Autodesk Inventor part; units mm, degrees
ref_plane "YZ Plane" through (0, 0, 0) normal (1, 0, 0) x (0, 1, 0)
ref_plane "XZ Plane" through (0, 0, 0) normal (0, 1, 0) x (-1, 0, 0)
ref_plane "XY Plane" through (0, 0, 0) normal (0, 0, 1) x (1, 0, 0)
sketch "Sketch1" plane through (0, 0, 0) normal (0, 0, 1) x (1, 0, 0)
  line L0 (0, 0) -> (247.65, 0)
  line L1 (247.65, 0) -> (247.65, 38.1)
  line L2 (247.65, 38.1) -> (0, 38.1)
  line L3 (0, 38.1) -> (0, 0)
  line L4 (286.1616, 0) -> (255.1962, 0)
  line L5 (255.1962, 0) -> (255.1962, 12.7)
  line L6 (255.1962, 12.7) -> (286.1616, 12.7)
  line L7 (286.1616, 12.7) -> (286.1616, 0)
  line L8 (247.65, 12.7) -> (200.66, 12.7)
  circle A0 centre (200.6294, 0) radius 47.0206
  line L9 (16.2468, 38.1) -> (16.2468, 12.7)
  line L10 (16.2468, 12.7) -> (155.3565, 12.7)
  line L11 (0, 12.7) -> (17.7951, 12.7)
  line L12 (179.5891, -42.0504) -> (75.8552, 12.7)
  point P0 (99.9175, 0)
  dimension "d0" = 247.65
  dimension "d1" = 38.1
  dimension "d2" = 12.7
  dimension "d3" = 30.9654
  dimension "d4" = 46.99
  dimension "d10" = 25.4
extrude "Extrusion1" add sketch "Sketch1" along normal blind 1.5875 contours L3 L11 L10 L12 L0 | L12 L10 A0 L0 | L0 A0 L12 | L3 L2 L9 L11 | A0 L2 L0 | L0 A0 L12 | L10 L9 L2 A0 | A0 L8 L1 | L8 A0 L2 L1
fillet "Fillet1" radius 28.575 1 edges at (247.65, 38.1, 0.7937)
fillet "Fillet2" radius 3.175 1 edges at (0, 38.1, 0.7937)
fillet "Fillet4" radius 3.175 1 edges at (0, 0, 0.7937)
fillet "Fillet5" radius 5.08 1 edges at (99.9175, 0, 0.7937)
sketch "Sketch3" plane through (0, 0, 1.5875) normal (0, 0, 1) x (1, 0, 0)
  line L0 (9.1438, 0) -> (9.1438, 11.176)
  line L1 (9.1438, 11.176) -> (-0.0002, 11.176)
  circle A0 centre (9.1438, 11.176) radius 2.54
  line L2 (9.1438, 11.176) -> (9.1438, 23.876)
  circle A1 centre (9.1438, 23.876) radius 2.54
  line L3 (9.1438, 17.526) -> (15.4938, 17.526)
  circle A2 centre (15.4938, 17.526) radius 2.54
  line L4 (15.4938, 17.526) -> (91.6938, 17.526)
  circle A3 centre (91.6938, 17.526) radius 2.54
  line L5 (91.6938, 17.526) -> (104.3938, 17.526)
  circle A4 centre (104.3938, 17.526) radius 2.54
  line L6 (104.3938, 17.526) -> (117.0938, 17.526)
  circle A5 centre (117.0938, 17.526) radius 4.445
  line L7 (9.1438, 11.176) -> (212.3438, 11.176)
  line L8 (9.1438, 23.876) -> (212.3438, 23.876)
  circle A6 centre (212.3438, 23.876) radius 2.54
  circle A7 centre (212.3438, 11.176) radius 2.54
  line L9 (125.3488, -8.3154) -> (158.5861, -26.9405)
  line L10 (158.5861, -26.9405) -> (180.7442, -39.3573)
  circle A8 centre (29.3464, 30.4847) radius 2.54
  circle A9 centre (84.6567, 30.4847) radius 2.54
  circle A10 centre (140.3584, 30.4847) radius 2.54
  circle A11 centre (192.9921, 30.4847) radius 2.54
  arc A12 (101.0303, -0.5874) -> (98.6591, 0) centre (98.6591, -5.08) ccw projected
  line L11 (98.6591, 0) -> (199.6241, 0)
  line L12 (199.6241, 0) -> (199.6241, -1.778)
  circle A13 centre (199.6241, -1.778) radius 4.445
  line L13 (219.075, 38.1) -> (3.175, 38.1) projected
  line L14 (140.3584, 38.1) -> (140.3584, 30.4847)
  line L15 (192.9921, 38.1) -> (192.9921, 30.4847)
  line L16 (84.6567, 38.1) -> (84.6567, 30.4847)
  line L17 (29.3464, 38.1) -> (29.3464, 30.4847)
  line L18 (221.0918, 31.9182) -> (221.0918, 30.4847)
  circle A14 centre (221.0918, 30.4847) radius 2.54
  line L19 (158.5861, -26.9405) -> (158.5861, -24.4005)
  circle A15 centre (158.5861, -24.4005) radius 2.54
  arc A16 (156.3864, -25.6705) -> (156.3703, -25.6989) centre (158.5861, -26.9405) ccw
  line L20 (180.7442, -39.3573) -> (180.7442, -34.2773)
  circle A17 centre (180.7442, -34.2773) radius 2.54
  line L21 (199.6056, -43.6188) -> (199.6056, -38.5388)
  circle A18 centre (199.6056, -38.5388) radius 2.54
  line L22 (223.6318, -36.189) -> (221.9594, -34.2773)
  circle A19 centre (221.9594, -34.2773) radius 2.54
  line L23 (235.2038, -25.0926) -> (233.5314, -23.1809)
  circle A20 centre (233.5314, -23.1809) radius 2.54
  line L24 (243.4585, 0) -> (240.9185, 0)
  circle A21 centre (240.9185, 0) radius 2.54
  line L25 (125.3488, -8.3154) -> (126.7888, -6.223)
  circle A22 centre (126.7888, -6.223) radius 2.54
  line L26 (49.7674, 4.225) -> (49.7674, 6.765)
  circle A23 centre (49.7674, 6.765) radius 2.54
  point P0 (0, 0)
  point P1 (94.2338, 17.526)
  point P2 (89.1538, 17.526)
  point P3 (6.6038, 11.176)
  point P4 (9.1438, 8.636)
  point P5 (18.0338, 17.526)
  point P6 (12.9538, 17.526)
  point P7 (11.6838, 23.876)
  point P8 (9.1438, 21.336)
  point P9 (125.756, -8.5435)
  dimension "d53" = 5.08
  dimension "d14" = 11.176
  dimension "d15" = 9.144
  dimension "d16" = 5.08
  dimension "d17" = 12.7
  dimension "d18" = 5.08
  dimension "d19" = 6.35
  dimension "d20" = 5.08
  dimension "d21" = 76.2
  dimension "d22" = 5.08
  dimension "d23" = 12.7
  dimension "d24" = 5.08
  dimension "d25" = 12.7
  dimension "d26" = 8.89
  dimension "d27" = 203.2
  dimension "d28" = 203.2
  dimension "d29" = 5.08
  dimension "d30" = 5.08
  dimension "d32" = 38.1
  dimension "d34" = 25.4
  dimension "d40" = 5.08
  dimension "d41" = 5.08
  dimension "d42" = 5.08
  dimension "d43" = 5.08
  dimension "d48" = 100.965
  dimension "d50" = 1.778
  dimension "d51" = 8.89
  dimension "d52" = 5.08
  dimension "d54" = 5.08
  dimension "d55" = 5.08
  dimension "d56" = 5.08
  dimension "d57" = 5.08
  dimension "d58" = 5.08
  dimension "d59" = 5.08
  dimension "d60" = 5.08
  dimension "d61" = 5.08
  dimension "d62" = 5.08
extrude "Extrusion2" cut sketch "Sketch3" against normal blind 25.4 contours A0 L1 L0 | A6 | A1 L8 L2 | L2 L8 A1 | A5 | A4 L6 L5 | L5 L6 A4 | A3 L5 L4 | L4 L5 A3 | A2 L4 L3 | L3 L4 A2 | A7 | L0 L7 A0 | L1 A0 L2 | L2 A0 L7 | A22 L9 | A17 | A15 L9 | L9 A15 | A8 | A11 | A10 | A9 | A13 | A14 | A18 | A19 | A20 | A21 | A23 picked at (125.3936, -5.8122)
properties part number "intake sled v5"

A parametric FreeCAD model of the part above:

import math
import FreeCAD as App
import Part
import Sketcher

V = App.Vector
Q = App.Units.Quantity


def edges_at(feature, points):
    """Names of the edges that pass closest to the given points."""
    edges = feature.Shape.Edges
    near = lambda p: min(range(len(edges)), key=lambda i: edges[i].distToShape(Part.Vertex(*p))[0])
    return sorted({f"Edge{near(p) + 1}" for p in points})

doc = App.newDocument("Part")
body = doc.addObject("PartDesign::Body", "Body")

# Sketch on XY plane
sketch1 = body.newObject("Sketcher::SketchObject", "Sketch")
sketch1.AttachmentSupport = (doc.getObject("XY_Plane"), [""])
sketch1.MapMode = "FlatFace"
sketch1.addGeometry(Part.LineSegment(V(0, 0, 0), V(100, 0, 0)), False)
sketch1.addGeometry(Part.LineSegment(V(100, 0, 0), V(180, -42, 0)), False)
sketch1.addGeometry(Part.ArcOfCircle(Part.Circle(V(201, 0, 0), V(0, 0, 1), 47), math.radians(-117), math.radians(0)), False)
sketch1.addGeometry(Part.LineSegment(V(248, 0, 0), V(248, 38, 0)), False)
sketch1.addGeometry(Part.LineSegment(V(248, 38, 0), V(0, 38, 0)), False)
sketch1.addGeometry(Part.LineSegment(V(0, 38, 0), V(0, 0, 0)), False)
sketch1.addConstraint(Sketcher.Constraint("Coincident", 0, 2, 1, 1))
sketch1.addConstraint(Sketcher.Constraint("Coincident", 1, 2, 2, 1))
sketch1.addConstraint(Sketcher.Constraint("Tangent", 2, 2, 3, 1))
sketch1.addConstraint(Sketcher.Constraint("Coincident", 3, 2, 4, 1))
sketch1.addConstraint(Sketcher.Constraint("Coincident", 4, 2, 5, 1))
sketch1.addConstraint(Sketcher.Constraint("Coincident", 5, 2, 0, 1))
sketch1.addConstraint(Sketcher.Constraint("Horizontal", 0))
sketch1.addConstraint(Sketcher.Constraint("Vertical", 3))
sketch1.addConstraint(Sketcher.Constraint("Horizontal", 4))
sketch1.addConstraint(Sketcher.Constraint("Vertical", 5))
sketch1.addConstraint(Sketcher.Constraint("Coincident", 5, 2, -1, 1))
sketch1.addConstraint(Sketcher.Constraint("PointOnObject", 2, 3, -1))
sketch1.addConstraint(Sketcher.Constraint("DistanceY", 3, 1, 3, 2, Q("1.5 in")))
sketch1.addConstraint(Sketcher.Constraint("DistanceX", 4, 2, 4, 1, Q("9.75 in")))
sketch1.addConstraint(Sketcher.Constraint("Radius", 2, Q("1.8512 in")))
sketch1.addConstraint(Sketcher.Constraint("DistanceX", 0, 1, 0, 2, 99.9175))
sketch1.addConstraint(Sketcher.Constraint("Distance", 1, 90.0877))
pad1 = body.newObject("PartDesign::Pad", "Pad")
pad1.Profile = sketch1
pad1.Length = Q("0.0625 in")
doc.recompute()

fillet = body.newObject("PartDesign::Fillet", "Fillet")
fillet.Base = (pad1, edges_at(pad1, [(247.65, 38.1, 0.794)]))
fillet.Radius = Q("1.125 in")
doc.recompute()

fillet2 = body.newObject("PartDesign::Fillet", "Fillet001")
fillet2.Base = (fillet, edges_at(fillet, [(0, 38.1, 0.794)]))
fillet2.Radius = Q("0.125 in")
doc.recompute()

fillet3 = body.newObject("PartDesign::Fillet", "Fillet002")
fillet3.Base = (fillet2, edges_at(fillet2, [(0, 0, 0.794)]))
fillet3.Radius = Q("0.125 in")
doc.recompute()

fillet4 = body.newObject("PartDesign::Fillet", "Fillet003")
fillet4.Base = (fillet3, edges_at(fillet3, [(99.918, 0, 0.794)]))
fillet4.Radius = Q("0.2 in")

# Sketch on XY plane
sketch2 = body.newObject("Sketcher::SketchObject", "Sketch001")
sketch2.AttachmentSupport = (doc.getObject("XY_Plane"), [""])
sketch2.MapMode = "FlatFace"
sketch2.AttachmentOffset = App.Placement(V(0, 0, 0.0625 * 25.4), App.Rotation())
sketch2.addGeometry(Part.Circle(V(9.14, 11.18, 0), V(0, 0, 1), 2.54), False)
sketch2.addGeometry(Part.Circle(V(212.34, 23.88, 0), V(0, 0, 1), 2.54), False)
sketch2.addGeometry(Part.Circle(V(9.14, 23.88, 0), V(0, 0, 1), 2.54), False)
sketch2.addGeometry(Part.Circle(V(117.09, 17.53, 0), V(0, 0, 1), 4.45), False)
sketch2.addGeometry(Part.Circle(V(104.39, 17.53, 0), V(0, 0, 1), 2.54), False)
sketch2.addGeometry(Part.Circle(V(91.69, 17.53, 0), V(0, 0, 1), 2.54), False)
sketch2.addGeometry(Part.Circle(V(15.49, 17.53, 0), V(0, 0, 1), 2.54), False)
sketch2.addGeometry(Part.Circle(V(212.34, 11.18, 0), V(0, 0, 1), 2.54), False)
sketch2.addGeometry(Part.ArcOfCircle(Part.Circle(V(126.79, -6.22, 0), V(0, 0, 1), 2.54), math.radians(-114), math.radians(235)), False)
sketch2.addGeometry(Part.LineSegment(V(125.76, -8.54, 0), V(125.35, -8.32, 0)), False)
sketch2.addGeometry(Part.Circle(V(180.74, -34.28, 0), V(0, 0, 1), 2.54), False)
sketch2.addGeometry(Part.Circle(V(158.59, -24.4, 0), V(0, 0, 1), 2.54), False)
sketch2.addGeometry(Part.Circle(V(29.35, 30.48, 0), V(0, 0, 1), 2.54), False)
sketch2.addGeometry(Part.Circle(V(192.99, 30.48, 0), V(0, 0, 1), 2.54), False)
sketch2.addGeometry(Part.Circle(V(140.36, 30.48, 0), V(0, 0, 1), 2.54), False)
sketch2.addGeometry(Part.Circle(V(84.66, 30.48, 0), V(0, 0, 1), 2.54), False)
sketch2.addGeometry(Part.Circle(V(199.62, -1.78, 0), V(0, 0, 1), 4.45), False)
sketch2.addGeometry(Part.Circle(V(221.09, 30.48, 0), V(0, 0, 1), 2.54), False)
sketch2.addGeometry(Part.Circle(V(199.61, -38.54, 0), V(0, 0, 1), 2.54), False)
sketch2.addGeometry(Part.Circle(V(221.96, -34.28, 0), V(0, 0, 1), 2.54), False)
sketch2.addGeometry(Part.Circle(V(233.53, -23.18, 0), V(0, 0, 1), 2.54), False)
sketch2.addGeometry(Part.Circle(V(240.92, 0, 0), V(0, 0, 1), 2.54), False)
sketch2.addGeometry(Part.Circle(V(49.77, 6.76, 0), V(0, 0, 1), 2.54), False)
sketch2.addConstraint(Sketcher.Constraint("Coincident", 8, 1, 9, 1))
sketch2.addConstraint(Sketcher.Constraint("Coincident", 9, 2, 8, 2))
sketch2.addConstraint(Sketcher.Constraint("Equal", 0, 1))
sketch2.addConstraint(Sketcher.Constraint("Equal", 1, 2))
sketch2.addConstraint(Sketcher.Constraint("Equal", 2, 4))
sketch2.addConstraint(Sketcher.Constraint("Equal", 4, 5))
sketch2.addConstraint(Sketcher.Constraint("Equal", 5, 6))
sketch2.addConstraint(Sketcher.Constraint("Equal", 6, 7))
sketch2.addConstraint(Sketcher.Constraint("Equal", 7, 8))
sketch2.addConstraint(Sketcher.Constraint("Equal", 8, 10))
sketch2.addConstraint(Sketcher.Constraint("Equal", 10, 11))
sketch2.addConstraint(Sketcher.Constraint("Equal", 11, 12))
sketch2.addConstraint(Sketcher.Constraint("Equal", 12, 13))
sketch2.addConstraint(Sketcher.Constraint("Equal", 13, 14))
sketch2.addConstraint(Sketcher.Constraint("Equal", 14, 15))
sketch2.addConstraint(Sketcher.Constraint("Equal", 3, 16))
sketch2.addConstraint(Sketcher.Constraint("Equal", 15, 17))
sketch2.addConstraint(Sketcher.Constraint("Equal", 17, 18))
sketch2.addConstraint(Sketcher.Constraint("Equal", 18, 19))
sketch2.addConstraint(Sketcher.Constraint("Equal", 19, 20))
sketch2.addConstraint(Sketcher.Constraint("Equal", 20, 21))
sketch2.addConstraint(Sketcher.Constraint("Equal", 21, 22))
sketch2.addConstraint(Sketcher.Constraint("PointOnObject", 21, 3, -1))
sketch2.addConstraint(Sketcher.Constraint("Horizontal", 1, 3, 2, 3))
sketch2.addConstraint(Sketcher.Constraint("Horizontal", 3, 3, 4, 3))
sketch2.addConstraint(Sketcher.Constraint("Horizontal", 4, 3, 5, 3))
sketch2.addConstraint(Sketcher.Constraint("Horizontal", 5, 3, 6, 3))
sketch2.addConstraint(Sketcher.Constraint("Horizontal", 0, 3, 7, 3))
sketch2.addConstraint(Sketcher.Constraint("Horizontal", 12, 3, 13, 3))
sketch2.addConstraint(Sketcher.Constraint("Horizontal", 13, 3, 14, 3))
sketch2.addConstraint(Sketcher.Constraint("Horizontal", 14, 3, 15, 3))
sketch2.addConstraint(Sketcher.Constraint("Horizontal", 15, 3, 17, 3))
sketch2.addConstraint(Sketcher.Constraint("Horizontal", 10, 3, 19, 3))
sketch2.addConstraint(Sketcher.Constraint("Vertical", 0, 3, 2, 3))
sketch2.addConstraint(Sketcher.Constraint("Vertical", 1, 3, 7, 3))
sketch2.addConstraint(Sketcher.Constraint("Diameter", 0, Q("0.2 in")))
sketch2.addConstraint(Sketcher.Constraint("Diameter", 3, Q("0.35 in")))
sketch2.addConstraint(Sketcher.Constraint("DistanceX", 0, 3, 1, 3, Q("8 in")))
sketch2.addConstraint(Sketcher.Constraint("DistanceX", 5, 3, 3, 3, Q("1 in")))
sketch2.addConstraint(Sketcher.Constraint("DistanceX", 6, 3, 5, 3, Q("3 in")))
sketch2.addConstraint(Sketcher.Constraint("DistanceY", 0, 3, 1, 3, Q("0.5 in")))
sketch2.addConstraint(Sketcher.Constraint("DistanceX", 4, 3, 3, 3, Q("0.5 in")))
sketch2.addConstraint(Sketcher.Constraint("DistanceX", -1, 1, 0, 3, Q("0.36 in")))
sketch2.addConstraint(Sketcher.Constraint("DistanceY", -1, 1, 0, 3, Q("0.44 in")))
sketch2.addConstraint(Sketcher.Constraint("DistanceY", 16, 3, -1, 1, Q("0.07 in")))
sketch2.addConstraint(Sketcher.Constraint("DistanceY", 3, 3, 1, 3, Q("0.25 in")))
sketch2.addConstraint(Sketcher.Constraint("DistanceX", 0, 3, 6, 3, Q("0.25 in")))
sketch2.addConstraint(Sketcher.Constraint("DistanceY", 8, 3, -1, 1, Q("0.245 in")))
sketch2.addConstraint(Sketcher.Constraint("DistanceX", -1, 1, 8, 1, Q("4.951 in")))
sketch2.addConstraint(Sketcher.Constraint("DistanceX", -1, 1, 9, 2, Q("4.935 in")))
sketch2.addConstraint(Sketcher.Constraint("DistanceX", 7, 3, 21, 3, Q("1.125 in")))
sketch2.addConstraint(Sketcher.Constraint("DistanceY", 10, 3, -1, 1, Q("1.3495 in")))
sketch2.addConstraint(Sketcher.Constraint("DistanceX", -1, 1, 17, 3, Q("8.7044 in")))
sketch2.addConstraint(Sketcher.Constraint("DistanceX", -1, 1, 18, 3, Q("7.8585 in")))
sketch2.addConstraint(Sketcher.Constraint("DistanceX", 3, 3, 8, 3, Q("0.3817 in")))
sketch2.addConstraint(Sketcher.Constraint("DistanceX", 10, 3, 13, 3, Q("0.4822 in")))
sketch2.addConstraint(Sketcher.Constraint("DistanceX", 14, 3, 13, 3, Q("2.0722 in")))
sketch2.addConstraint(Sketcher.Constraint("DistanceX", 13, 3, 16, 3, Q("0.2611 in")))
sketch2.addConstraint(Sketcher.Constraint("DistanceX", 10, 3, 17, 3, Q("1.5885 in")))
sketch2.addConstraint(Sketcher.Constraint("DistanceX", 19, 3, 20, 3, Q("0.4556 in")))
sketch2.addConstraint(Sketcher.Constraint("DistanceX", 22, 3, 15, 3, Q("1.3736 in")))
sketch2.addConstraint(Sketcher.Constraint("DistanceY", 11, 3, 8, 1, Q("0.6243 in")))
sketch2.addConstraint(Sketcher.Constraint("DistanceX", -1, 1, 11, 3, 158.586))
sketch2.addConstraint(Sketcher.Constraint("DistanceX", -1, 1, 12, 3, 29.3464))
sketch2.addConstraint(Sketcher.Constraint("DistanceY", -1, 1, 12, 3, 30.4847))
sketch2.addConstraint(Sketcher.Constraint("DistanceX", -1, 1, 15, 3, 84.6567))
sketch2.addConstraint(Sketcher.Constraint("DistanceY", 18, 3, -1, 1, 38.5388))
sketch2.addConstraint(Sketcher.Constraint("DistanceX", -1, 1, 19, 3, 221.9594))
sketch2.addConstraint(Sketcher.Constraint("DistanceY", 20, 3, -1, 1, 23.181))
sketch2.addConstraint(Sketcher.Constraint("DistanceY", -1, 1, 22, 3, 6.765))
pocket1 = body.newObject("PartDesign::Pocket", "Pocket")
pocket1.Profile = sketch2
pocket1.Length = Q("1 in")

doc.recompute()
